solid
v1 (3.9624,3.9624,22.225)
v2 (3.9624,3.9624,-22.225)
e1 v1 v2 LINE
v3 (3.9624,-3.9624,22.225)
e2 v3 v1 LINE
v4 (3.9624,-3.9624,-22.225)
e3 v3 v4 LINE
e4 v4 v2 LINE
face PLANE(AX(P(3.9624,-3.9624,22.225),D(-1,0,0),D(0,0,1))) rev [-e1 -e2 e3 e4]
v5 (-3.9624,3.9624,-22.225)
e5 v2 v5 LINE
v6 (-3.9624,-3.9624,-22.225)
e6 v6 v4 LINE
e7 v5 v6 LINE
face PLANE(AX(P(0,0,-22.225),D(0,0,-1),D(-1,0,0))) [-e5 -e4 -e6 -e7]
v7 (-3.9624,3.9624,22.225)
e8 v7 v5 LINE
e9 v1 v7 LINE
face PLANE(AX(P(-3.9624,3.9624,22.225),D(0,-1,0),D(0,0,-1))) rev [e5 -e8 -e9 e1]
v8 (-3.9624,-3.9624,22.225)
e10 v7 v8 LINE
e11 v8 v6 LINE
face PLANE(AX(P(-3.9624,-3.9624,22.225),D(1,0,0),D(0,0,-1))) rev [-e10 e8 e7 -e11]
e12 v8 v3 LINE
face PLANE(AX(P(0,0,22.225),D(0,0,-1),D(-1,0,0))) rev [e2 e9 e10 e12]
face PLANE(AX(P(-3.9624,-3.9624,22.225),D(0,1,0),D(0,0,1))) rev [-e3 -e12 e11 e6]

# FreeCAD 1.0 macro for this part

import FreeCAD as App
import Part
import Sketcher

V = App.Vector
Q = App.Units.Quantity

doc = App.newDocument("Part")
body = doc.addObject("PartDesign::Body", "Body")

# Sketch on XY plane
sketch1 = doc.addObject("Sketcher::SketchObject", "Sketch")
body.addObject(sketch1)
sketch1.AttachmentSupport = (doc.XY_Plane, [""])
sketch1.MapMode = "FlatFace"
sketch1.addGeometry([
    Part.LineSegment(V(-4, 4, 0), V(-4, -4, 0)),
    Part.LineSegment(V(-4, -4, 0), V(4, -4, 0)),
    Part.LineSegment(V(4, -4, 0), V(4, 4, 0)),
    Part.LineSegment(V(4, 4, 0), V(-4, 4, 0)),
], False)
sketch1.addConstraint([
    Sketcher.Constraint("Coincident", 0, 2, 1, 1),
    Sketcher.Constraint("Coincident", 1, 2, 2, 1),
    Sketcher.Constraint("Coincident", 2, 2, 3, 1),
    Sketcher.Constraint("Coincident", 3, 2, 0, 1),
    Sketcher.Constraint("Vertical", 0),
    Sketcher.Constraint("Horizontal", 1),
    Sketcher.Constraint("Vertical", 2),
    Sketcher.Constraint("Horizontal", 3),
    Sketcher.Constraint("Symmetric", 0, 2, 2, 2, -1, 1),
    Sketcher.Constraint("Equal", 3, 0),
    Sketcher.Constraint("DistanceX", 1, 1, 1, 2, Q("0.312 in")),
])
pad1 = doc.addObject("PartDesign::Pad", "Pad")
body.addObject(pad1)
pad1.Profile = sketch1
pad1.Length = Q("1.75 in")
pad1.Midplane = True

doc.recompute()
